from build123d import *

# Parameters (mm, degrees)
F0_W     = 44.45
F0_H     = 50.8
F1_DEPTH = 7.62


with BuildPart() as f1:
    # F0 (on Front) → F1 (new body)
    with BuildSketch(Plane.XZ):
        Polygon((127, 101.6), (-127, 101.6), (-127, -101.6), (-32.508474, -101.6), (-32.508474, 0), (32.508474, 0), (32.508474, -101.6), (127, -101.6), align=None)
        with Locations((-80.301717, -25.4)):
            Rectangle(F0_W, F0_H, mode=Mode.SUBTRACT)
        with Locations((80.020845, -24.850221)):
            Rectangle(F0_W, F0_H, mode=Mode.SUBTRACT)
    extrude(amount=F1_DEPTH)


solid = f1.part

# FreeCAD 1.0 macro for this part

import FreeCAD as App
import Part
import Sketcher

V = App.Vector
Q = App.Units.Quantity


def add_polygon(sketch, points):
    """Adds a closed chain of lines whose ends are joined by coincident constraints."""
    first, n = sketch.GeometryCount, len(points)
    for a, b in zip(points, points[1:] + points[:1]):
        sketch.addGeometry(Part.LineSegment(App.Vector(*a, 0), App.Vector(*b, 0)), False)
    for i in range(n):
        sketch.addConstraint(Sketcher.Constraint("Coincident", first + i, 2, first + (i + 1) % n, 1))

doc = App.newDocument("Part")
body = doc.addObject("PartDesign::Body", "Body")

# Sketch on XZ plane
sketch1 = body.newObject("Sketcher::SketchObject", "Sketch")
sketch1.AttachmentSupport = (doc.getObject("XZ_Plane"), [""])
sketch1.MapMode = "FlatFace"
add_polygon(sketch1, [(127, 102), (-127, 102), (-127, -102), (-33, -102), (-33, 0), (33, 0), (33, -102), (127, -102)])  # lines 0-7
add_polygon(sketch1, [(-58, -51), (-103, -51), (-103, 0), (-58, 0)])  # lines 8-11
add_polygon(sketch1, [(102, -50), (58, -50), (58, 1), (102, 1)])  # lines 12-15
sketch1.addConstraint([
    Sketcher.Constraint("Horizontal", 0),
    Sketcher.Constraint("Vertical", 1),
    Sketcher.Constraint("Horizontal", 2),
    Sketcher.Constraint("Vertical", 3),
    Sketcher.Constraint("Horizontal", 4),
    Sketcher.Constraint("Vertical", 5),
    Sketcher.Constraint("Horizontal", 6),
    Sketcher.Constraint("Vertical", 7),
    Sketcher.Constraint("Horizontal", 8),
    Sketcher.Constraint("Vertical", 9),
    Sketcher.Constraint("Horizontal", 10),
    Sketcher.Constraint("Vertical", 11),
    Sketcher.Constraint("Horizontal", 12),
    Sketcher.Constraint("Vertical", 13),
    Sketcher.Constraint("Horizontal", 14),
    Sketcher.Constraint("Vertical", 15),
    Sketcher.Constraint("Symmetric", 3, 2, 4, 2, -1, 1),
    Sketcher.Constraint("Symmetric", 0, 2, 6, 2, -1, 1),
    Sketcher.Constraint("PointOnObject", 9, 2, -1),
    Sketcher.Constraint("Horizontal", 2, 2, 5, 2),
    Sketcher.Constraint("Equal", 10, 12),
    Sketcher.Constraint("Equal", 11, 13),
    Sketcher.Constraint("DistanceX", 0, 2, 0, 1, Q("10 in")),
    Sketcher.Constraint("DistanceY", 1, 2, 1, 1, Q("8 in")),
    Sketcher.Constraint("DistanceY", 9, 1, 9, 2, Q("2 in")),
    Sketcher.Constraint("DistanceX", 8, 2, 8, 1, Q("1.75 in")),
    Sketcher.Constraint("DistanceX", 4, 1, 4, 2, Q("65.016948 mm")),
    Sketcher.Constraint("DistanceY", 12, 2, -1, 1, Q("50.250221 mm")),
    Sketcher.Constraint("DistanceX", 8, 2, 4, 2, Q("135.035191 mm")),
    Sketcher.Constraint("DistanceX", 4, 2, 12, 2, Q("25.287371 mm")),
])
pad1 = body.newObject("PartDesign::Pad", "Pad")
pad1.Profile = sketch1
pad1.Length = Q("0.3 in")

doc.recompute()
